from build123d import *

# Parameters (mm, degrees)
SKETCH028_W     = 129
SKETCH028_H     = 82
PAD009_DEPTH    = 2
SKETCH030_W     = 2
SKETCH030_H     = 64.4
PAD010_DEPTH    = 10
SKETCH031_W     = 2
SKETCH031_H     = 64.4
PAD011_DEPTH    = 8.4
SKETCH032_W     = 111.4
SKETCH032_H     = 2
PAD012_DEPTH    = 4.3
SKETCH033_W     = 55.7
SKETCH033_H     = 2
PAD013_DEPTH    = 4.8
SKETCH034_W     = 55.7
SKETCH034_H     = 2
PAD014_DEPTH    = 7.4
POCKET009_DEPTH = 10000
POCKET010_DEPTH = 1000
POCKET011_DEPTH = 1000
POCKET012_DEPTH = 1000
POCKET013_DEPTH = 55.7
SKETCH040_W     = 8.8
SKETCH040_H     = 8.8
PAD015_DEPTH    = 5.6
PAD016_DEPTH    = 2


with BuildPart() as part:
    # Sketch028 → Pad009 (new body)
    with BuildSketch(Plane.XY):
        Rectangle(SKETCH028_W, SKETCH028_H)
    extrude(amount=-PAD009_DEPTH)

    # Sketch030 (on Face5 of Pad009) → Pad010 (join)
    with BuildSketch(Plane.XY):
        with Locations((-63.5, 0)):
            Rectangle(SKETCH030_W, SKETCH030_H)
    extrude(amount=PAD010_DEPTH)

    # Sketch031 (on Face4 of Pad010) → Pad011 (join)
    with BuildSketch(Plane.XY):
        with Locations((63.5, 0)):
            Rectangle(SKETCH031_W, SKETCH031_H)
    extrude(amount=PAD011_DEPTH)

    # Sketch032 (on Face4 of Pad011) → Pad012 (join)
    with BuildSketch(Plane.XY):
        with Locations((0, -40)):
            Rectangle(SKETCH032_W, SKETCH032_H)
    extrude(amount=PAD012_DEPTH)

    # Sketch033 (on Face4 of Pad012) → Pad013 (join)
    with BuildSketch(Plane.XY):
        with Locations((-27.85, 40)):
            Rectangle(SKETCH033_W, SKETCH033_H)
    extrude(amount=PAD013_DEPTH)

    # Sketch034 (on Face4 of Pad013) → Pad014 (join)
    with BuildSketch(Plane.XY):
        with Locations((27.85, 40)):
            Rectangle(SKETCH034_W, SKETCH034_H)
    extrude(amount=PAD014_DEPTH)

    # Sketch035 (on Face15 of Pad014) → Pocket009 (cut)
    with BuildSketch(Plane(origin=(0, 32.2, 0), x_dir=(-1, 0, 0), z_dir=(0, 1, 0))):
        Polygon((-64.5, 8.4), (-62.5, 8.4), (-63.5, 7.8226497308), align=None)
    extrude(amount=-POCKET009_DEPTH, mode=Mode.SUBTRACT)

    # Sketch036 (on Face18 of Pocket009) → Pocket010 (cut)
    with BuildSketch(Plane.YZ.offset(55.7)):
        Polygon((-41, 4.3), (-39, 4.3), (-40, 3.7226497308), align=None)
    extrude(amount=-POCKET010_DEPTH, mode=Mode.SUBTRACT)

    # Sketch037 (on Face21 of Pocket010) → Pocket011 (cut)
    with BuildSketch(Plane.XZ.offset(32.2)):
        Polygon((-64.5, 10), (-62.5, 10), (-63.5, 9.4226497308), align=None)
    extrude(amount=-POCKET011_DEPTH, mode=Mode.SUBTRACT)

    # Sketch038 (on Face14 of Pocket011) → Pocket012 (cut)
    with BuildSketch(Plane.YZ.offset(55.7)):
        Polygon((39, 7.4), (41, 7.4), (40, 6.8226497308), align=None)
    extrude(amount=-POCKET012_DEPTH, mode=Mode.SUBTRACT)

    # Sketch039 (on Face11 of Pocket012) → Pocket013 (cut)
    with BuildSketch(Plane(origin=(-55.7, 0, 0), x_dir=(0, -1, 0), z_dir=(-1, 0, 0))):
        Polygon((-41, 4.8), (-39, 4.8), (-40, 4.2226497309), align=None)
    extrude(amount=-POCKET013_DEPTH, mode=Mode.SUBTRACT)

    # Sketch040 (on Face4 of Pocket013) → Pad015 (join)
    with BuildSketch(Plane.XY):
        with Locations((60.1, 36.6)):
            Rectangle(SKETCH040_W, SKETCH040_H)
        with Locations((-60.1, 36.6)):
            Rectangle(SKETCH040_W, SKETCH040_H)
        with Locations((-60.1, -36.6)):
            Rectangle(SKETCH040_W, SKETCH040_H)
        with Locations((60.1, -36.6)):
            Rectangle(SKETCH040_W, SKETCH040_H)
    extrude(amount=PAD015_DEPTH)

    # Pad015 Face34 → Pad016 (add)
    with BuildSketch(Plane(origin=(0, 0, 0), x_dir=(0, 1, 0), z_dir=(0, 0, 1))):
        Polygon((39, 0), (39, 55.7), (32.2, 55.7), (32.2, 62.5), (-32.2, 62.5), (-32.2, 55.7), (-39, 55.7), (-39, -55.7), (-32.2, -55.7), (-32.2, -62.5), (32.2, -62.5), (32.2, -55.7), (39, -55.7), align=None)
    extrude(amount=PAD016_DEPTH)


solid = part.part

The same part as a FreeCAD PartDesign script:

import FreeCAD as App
import Part
import Sketcher
from FreeCAD import Vector
Q = App.Units.Quantity

doc = App.newDocument("Part")
body = doc.addObject("PartDesign::Body", "Body")

sketch1 = body.newObject("Sketcher::SketchObject", "Sketch")
sketch1.AttachmentSupport = (doc.getObject("XY_Plane"), [""])
sketch1.MapMode = "FlatFace"
sketch1.addGeometry(Part.LineSegment(Vector(-64, 41, 0), Vector(-64, -41, 0)), False)
sketch1.addGeometry(Part.LineSegment(Vector(-64, -41, 0), Vector(64, -41, 0)), False)
sketch1.addGeometry(Part.LineSegment(Vector(64, -41, 0), Vector(64, 41, 0)), False)
sketch1.addGeometry(Part.LineSegment(Vector(64, 41, 0), Vector(-64, 41, 0)), False)
sketch1.addConstraint(Sketcher.Constraint("Coincident", 0, 2, 1, 1))
sketch1.addConstraint(Sketcher.Constraint("Coincident", 1, 2, 2, 1))
sketch1.addConstraint(Sketcher.Constraint("Coincident", 2, 2, 3, 1))
sketch1.addConstraint(Sketcher.Constraint("Coincident", 3, 2, 0, 1))
sketch1.addConstraint(Sketcher.Constraint("Vertical", 0))
sketch1.addConstraint(Sketcher.Constraint("Horizontal", 1))
sketch1.addConstraint(Sketcher.Constraint("Vertical", 2))
sketch1.addConstraint(Sketcher.Constraint("Horizontal", 3))
sketch1.addConstraint(Sketcher.Constraint("Symmetric", 0, 2, 2, 2, -1, 1))
sketch1.addConstraint(Sketcher.Constraint("DistanceX", 1, 1, 1, 2, 129.0))
sketch1.addConstraint(Sketcher.Constraint("DistanceY", 0, 2, 0, 1, 82.0))
pad1 = body.newObject("PartDesign::Pad", "Pad")
pad1.Profile = sketch1
pad1.Length = 2
pad1.Reversed = True

sketch2 = body.newObject("Sketcher::SketchObject", "Sketch001")
sketch2.AttachmentSupport = (doc.getObject("XY_Plane"), [""])
sketch2.MapMode = "FlatFace"
sketch2.addGeometry(Part.LineSegment(Vector(-64.5, 32.2, 0), Vector(-64.5, -32.2, 0)), False)
sketch2.addGeometry(Part.LineSegment(Vector(-64.5, -32.2, 0), Vector(-62.5, -32.2, 0)), False)
sketch2.addGeometry(Part.LineSegment(Vector(-62.5, -32.2, 0), Vector(-62.5, 32.2, 0)), False)
sketch2.addGeometry(Part.LineSegment(Vector(-62.5, 32.2, 0), Vector(-64.5, 32.2, 0)), False)
sketch2.addConstraint(Sketcher.Constraint("Coincident", 0, 2, 1, 1))
sketch2.addConstraint(Sketcher.Constraint("Coincident", 1, 2, 2, 1))
sketch2.addConstraint(Sketcher.Constraint("Coincident", 2, 2, 3, 1))
sketch2.addConstraint(Sketcher.Constraint("Coincident", 3, 2, 0, 1))
sketch2.addConstraint(Sketcher.Constraint("Vertical", 0))
sketch2.addConstraint(Sketcher.Constraint("Horizontal", 1))
sketch2.addConstraint(Sketcher.Constraint("Vertical", 2))
sketch2.addConstraint(Sketcher.Constraint("Horizontal", 3))
sketch2.addConstraint(Sketcher.Constraint("DistanceX", 1, 1, 1, 2, 2.0))
sketch2.addConstraint(Sketcher.Constraint("DistanceY", 0, 2, 0, 1, 64.4))
sketch2.addConstraint(Sketcher.Constraint("DistanceX", 0, 2, -1, 1, 64.5))
sketch2.addConstraint(Sketcher.Constraint("DistanceY", 0, 2, -1, 1, 32.2))
pad2 = body.newObject("PartDesign::Pad", "Pad001")
pad2.Profile = sketch2
pad2.Length = 10

sketch3 = body.newObject("Sketcher::SketchObject", "Sketch002")
sketch3.AttachmentSupport = (doc.getObject("XY_Plane"), [""])
sketch3.MapMode = "FlatFace"
sketch3.addGeometry(Part.LineSegment(Vector(62.5, 32.2, 0), Vector(62.5, -32.2, 0)), False)
sketch3.addGeometry(Part.LineSegment(Vector(62.5, -32.2, 0), Vector(64.5, -32.2, 0)), False)
sketch3.addGeometry(Part.LineSegment(Vector(64.5, -32.2, 0), Vector(64.5, 32.2, 0)), False)
sketch3.addGeometry(Part.LineSegment(Vector(64.5, 32.2, 0), Vector(62.5, 32.2, 0)), False)
sketch3.addConstraint(Sketcher.Constraint("Coincident", 0, 2, 1, 1))
sketch3.addConstraint(Sketcher.Constraint("Coincident", 1, 2, 2, 1))
sketch3.addConstraint(Sketcher.Constraint("Coincident", 2, 2, 3, 1))
sketch3.addConstraint(Sketcher.Constraint("Coincident", 3, 2, 0, 1))
sketch3.addConstraint(Sketcher.Constraint("Vertical", 0))
sketch3.addConstraint(Sketcher.Constraint("Horizontal", 1))
sketch3.addConstraint(Sketcher.Constraint("Vertical", 2))
sketch3.addConstraint(Sketcher.Constraint("Horizontal", 3))
sketch3.addConstraint(Sketcher.Constraint("DistanceX", 1, 1, 1, 2, 2.0))
sketch3.addConstraint(Sketcher.Constraint("DistanceY", 0, 2, 0, 1, 64.4))
sketch3.addConstraint(Sketcher.Constraint("DistanceX", -1, 1, 0, 2, 62.5))
sketch3.addConstraint(Sketcher.Constraint("DistanceY", 0, 2, -1, 1, 32.2))
pad3 = body.newObject("PartDesign::Pad", "Pad002")
pad3.Profile = sketch3
pad3.Length = 8.4

sketch4 = body.newObject("Sketcher::SketchObject", "Sketch003")
sketch4.AttachmentSupport = (doc.getObject("XY_Plane"), [""])
sketch4.MapMode = "FlatFace"
sketch4.addGeometry(Part.LineSegment(Vector(-55.7, -39, 0), Vector(-55.7, -41, 0)), False)
sketch4.addGeometry(Part.LineSegment(Vector(-55.7, -41, 0), Vector(55.7, -41, 0)), False)
sketch4.addGeometry(Part.LineSegment(Vector(55.7, -41, 0), Vector(55.7, -39, 0)), False)
sketch4.addGeometry(Part.LineSegment(Vector(55.7, -39, 0), Vector(-55.7, -39, 0)), False)
sketch4.addConstraint(Sketcher.Constraint("Coincident", 0, 2, 1, 1))
sketch4.addConstraint(Sketcher.Constraint("Coincident", 1, 2, 2, 1))
sketch4.addConstraint(Sketcher.Constraint("Coincident", 2, 2, 3, 1))
sketch4.addConstraint(Sketcher.Constraint("Coincident", 3, 2, 0, 1))
sketch4.addConstraint(Sketcher.Constraint("Vertical", 0))
sketch4.addConstraint(Sketcher.Constraint("Horizontal", 1))
sketch4.addConstraint(Sketcher.Constraint("Vertical", 2))
sketch4.addConstraint(Sketcher.Constraint("Horizontal", 3))
sketch4.addConstraint(Sketcher.Constraint("DistanceY", 0, 2, 0, 1, 2.0))
sketch4.addConstraint(Sketcher.Constraint("DistanceX", 1, 1, 1, 2, 111.4))
sketch4.addConstraint(Sketcher.Constraint("DistanceY", 0, 2, -1, 1, 41.0))
sketch4.addConstraint(Sketcher.Constraint("DistanceX", 0, 2, -1, 1, 55.7))
pad4 = body.newObject("PartDesign::Pad", "Pad003")
pad4.Profile = sketch4
pad4.Length = 4.3

sketch5 = body.newObject("Sketcher::SketchObject", "Sketch004")
sketch5.AttachmentSupport = (doc.getObject("XY_Plane"), [""])
sketch5.MapMode = "FlatFace"
sketch5.addGeometry(Part.LineSegment(Vector(-55.7, 41, 0), Vector(-55.7, 39, 0)), False)
sketch5.addGeometry(Part.LineSegment(Vector(-55.7, 39, 0), Vector(0, 39, 0)), False)
sketch5.addGeometry(Part.LineSegment(Vector(0, 39, 0), Vector(0, 41, 0)), False)
sketch5.addGeometry(Part.LineSegment(Vector(0, 41, 0), Vector(-55.7, 41, 0)), False)
sketch5.addConstraint(Sketcher.Constraint("Coincident", 0, 2, 1, 1))
sketch5.addConstraint(Sketcher.Constraint("Coincident", 1, 2, 2, 1))
sketch5.addConstraint(Sketcher.Constraint("Coincident", 2, 2, 3, 1))
sketch5.addConstraint(Sketcher.Constraint("Coincident", 3, 2, 0, 1))
sketch5.addConstraint(Sketcher.Constraint("Vertical", 0))
sketch5.addConstraint(Sketcher.Constraint("Horizontal", 1))
sketch5.addConstraint(Sketcher.Constraint("Vertical", 2))
sketch5.addConstraint(Sketcher.Constraint("Horizontal", 3))
sketch5.addConstraint(Sketcher.Constraint("PointOnObject", 1, 2, -2))
sketch5.addConstraint(Sketcher.Constraint("DistanceY", 0, 2, 0, 1, 2.0))
sketch5.addConstraint(Sketcher.Constraint("DistanceX", 1, 1, 1, 2, 55.7))
sketch5.addConstraint(Sketcher.Constraint("DistanceY", -1, 1, 0, 2, 39.0))
pad5 = body.newObject("PartDesign::Pad", "Pad004")
pad5.Profile = sketch5
pad5.Length = 4.8

sketch6 = body.newObject("Sketcher::SketchObject", "Sketch005")
sketch6.AttachmentSupport = (doc.getObject("XY_Plane"), [""])
sketch6.MapMode = "FlatFace"
sketch6.addGeometry(Part.LineSegment(Vector(0, 41, 0), Vector(0, 39, 0)), False)
sketch6.addGeometry(Part.LineSegment(Vector(0, 39, 0), Vector(55.7, 39, 0)), False)
sketch6.addGeometry(Part.LineSegment(Vector(55.7, 39, 0), Vector(55.7, 41, 0)), False)
sketch6.addGeometry(Part.LineSegment(Vector(55.7, 41, 0), Vector(0, 41, 0)), False)
sketch6.addConstraint(Sketcher.Constraint("Coincident", 0, 2, 1, 1))
sketch6.addConstraint(Sketcher.Constraint("Coincident", 1, 2, 2, 1))
sketch6.addConstraint(Sketcher.Constraint("Coincident", 2, 2, 3, 1))
sketch6.addConstraint(Sketcher.Constraint("Coincident", 3, 2, 0, 1))
sketch6.addConstraint(Sketcher.Constraint("Vertical", 0))
sketch6.addConstraint(Sketcher.Constraint("Horizontal", 1))
sketch6.addConstraint(Sketcher.Constraint("Vertical", 2))
sketch6.addConstraint(Sketcher.Constraint("Horizontal", 3))
sketch6.addConstraint(Sketcher.Constraint("PointOnObject", 0, 2, -2))
sketch6.addConstraint(Sketcher.Constraint("DistanceY", 0, 2, 0, 1, 2.0))
sketch6.addConstraint(Sketcher.Constraint("DistanceX", 1, 1, 1, 2, 55.7))
sketch6.addConstraint(Sketcher.Constraint("DistanceY", -1, 1, 0, 2, 39.0))
pad6 = body.newObject("PartDesign::Pad", "Pad005")
pad6.Profile = sketch6
pad6.Length = 7.4

sketch7 = body.newObject("Sketcher::SketchObject", "Sketch006")
sketch7.AttachmentSupport = (doc.getObject("XZ_Plane"), [""])
sketch7.MapMode = "FlatFace"
sketch7.AttachmentOffset = App.Placement(Vector(0, 0, -32.2), App.Rotation())
sketch7.addGeometry(Part.LineSegment(Vector(62.5, 8.4, 0), Vector(64.5, 8.4, 0)), False)
sketch7.addGeometry(Part.LineSegment(Vector(64.5, 8.4, 0), Vector(63.5, 7.8, 0)), False)
sketch7.addGeometry(Part.LineSegment(Vector(63.5, 7.8, 0), Vector(62.5, 8.4, 0)), False)
sketch7.addConstraint(Sketcher.Constraint("Coincident", 0, 2, 1, 1))
sketch7.addConstraint(Sketcher.Constraint("Coincident", 1, 2, 2, 1))
sketch7.addConstraint(Sketcher.Constraint("Coincident", 2, 2, 0, 1))
sketch7.addConstraint(Sketcher.Constraint("Horizontal", 0))
sketch7.addConstraint(Sketcher.Constraint("Equal", 1, 2))
sketch7.addConstraint(Sketcher.Constraint("DistanceX", 0, 1, 0, 2, 2.0))
sketch7.addConstraint(Sketcher.Constraint("Angle", 1, Q("-150 deg")))
sketch7.addConstraint(Sketcher.Constraint("DistanceX", -1, 1, 0, 2, 64.5))
sketch7.addConstraint(Sketcher.Constraint("DistanceY", -1, 1, 0, 2, 8.4))
pocket1 = body.newObject("PartDesign::Pocket", "Pocket")
pocket1.Profile = sketch7
pocket1.Length = 10000
pocket1.Reversed = True

sketch8 = body.newObject("Sketcher::SketchObject", "Sketch007")
sketch8.AttachmentSupport = (doc.getObject("YZ_Plane"), [""])
sketch8.MapMode = "FlatFace"
sketch8.AttachmentOffset = App.Placement(Vector(0, 0, 55.7), App.Rotation())
sketch8.addGeometry(Part.LineSegment(Vector(-39, 4.3, 0), Vector(-41, 4.3, 0)), False)
sketch8.addGeometry(Part.LineSegment(Vector(-41, 4.3, 0), Vector(-40, 3.7, 0)), False)
sketch8.addGeometry(Part.LineSegment(Vector(-40, 3.7, 0), Vector(-39, 4.3, 0)), False)
sketch8.addConstraint(Sketcher.Constraint("Coincident", 0, 2, 1, 1))
sketch8.addConstraint(Sketcher.Constraint("Coincident", 1, 2, 2, 1))
sketch8.addConstraint(Sketcher.Constraint("Coincident", 2, 2, 0, 1))
sketch8.addConstraint(Sketcher.Constraint("Horizontal", 0))
sketch8.addConstraint(Sketcher.Constraint("Equal", 1, 2))
sketch8.addConstraint(Sketcher.Constraint("DistanceX", 0, 2, 0, 1, 2.0))
sketch8.addConstraint(Sketcher.Constraint("Angle", 1, Q("-30 deg")))
sketch8.addConstraint(Sketcher.Constraint("DistanceX", 0, 2, -1, 1, 41.0))
sketch8.addConstraint(Sketcher.Constraint("DistanceY", -1, 1, 0, 2, 4.3))
pocket2 = body.newObject("PartDesign::Pocket", "Pocket001")
pocket2.Profile = sketch8
pocket2.Length = 1000

sketch9 = body.newObject("Sketcher::SketchObject", "Sketch008")
sketch9.AttachmentSupport = (doc.getObject("XZ_Plane"), [""])
sketch9.MapMode = "FlatFace"
sketch9.AttachmentOffset = App.Placement(Vector(0, 0, 32.2), App.Rotation())
sketch9.addGeometry(Part.LineSegment(Vector(-62.5, 10, 0), Vector(-64.5, 10, 0)), False)
sketch9.addGeometry(Part.LineSegment(Vector(-64.5, 10, 0), Vector(-63.5, 9.4, 0)), False)
sketch9.addGeometry(Part.LineSegment(Vector(-63.5, 9.4, 0), Vector(-62.5, 10, 0)), False)
sketch9.addConstraint(Sketcher.Constraint("Coincident", 0, 2, 1, 1))
sketch9.addConstraint(Sketcher.Constraint("Coincident", 1, 2, 2, 1))
sketch9.addConstraint(Sketcher.Constraint("Coincident", 2, 2, 0, 1))
sketch9.addConstraint(Sketcher.Constraint("Horizontal", 0))
sketch9.addConstraint(Sketcher.Constraint("Equal", 1, 2))
sketch9.addConstraint(Sketcher.Constraint("DistanceX", 0, 2, 0, 1, 2.0))
sketch9.addConstraint(Sketcher.Constraint("Angle", 1, Q("-30 deg")))
sketch9.addConstraint(Sketcher.Constraint("DistanceY", -1, 1, 0, 2, 10.0))
sketch9.addConstraint(Sketcher.Constraint("DistanceX", 0, 2, -1, 1, 64.5))
pocket3 = body.newObject("PartDesign::Pocket", "Pocket002")
pocket3.Profile = sketch9
pocket3.Length = 1000

sketch10 = body.newObject("Sketcher::SketchObject", "Sketch009")
sketch10.AttachmentSupport = (doc.getObject("YZ_Plane"), [""])
sketch10.MapMode = "FlatFace"
sketch10.AttachmentOffset = App.Placement(Vector(0, 0, 55.7), App.Rotation())
sketch10.addGeometry(Part.LineSegment(Vector(41, 7.4, 0), Vector(39, 7.4, 0)), False)
sketch10.addGeometry(Part.LineSegment(Vector(39, 7.4, 0), Vector(40, 6.8, 0)), False)
sketch10.addGeometry(Part.LineSegment(Vector(40, 6.8, 0), Vector(41, 7.4, 0)), False)
sketch10.addConstraint(Sketcher.Constraint("Coincident", 0, 2, 1, 1))
sketch10.addConstraint(Sketcher.Constraint("Coincident", 1, 2, 2, 1))
sketch10.addConstraint(Sketcher.Constraint("Coincident", 2, 2, 0, 1))
sketch10.addConstraint(Sketcher.Constraint("Horizontal", 0))
sketch10.addConstraint(Sketcher.Constraint("Equal", 1, 2))
sketch10.addConstraint(Sketcher.Constraint("DistanceX", 0, 2, 0, 1, 2.0))
sketch10.addConstraint(Sketcher.Constraint("Angle", 1, Q("-30 deg")))
sketch10.addConstraint(Sketcher.Constraint("DistanceX", -1, 1, 0, 2, 39.0))
sketch10.addConstraint(Sketcher.Constraint("DistanceY", -1, 1, 0, 2, 7.4))
pocket4 = body.newObject("PartDesign::Pocket", "Pocket003")
pocket4.Profile = sketch10
pocket4.Length = 1000

sketch11 = body.newObject("Sketcher::SketchObject", "Sketch010")
sketch11.AttachmentSupport = (doc.getObject("YZ_Plane"), [""])
sketch11.MapMode = "FlatFace"
sketch11.AttachmentOffset = App.Placement(Vector(0, 0, -55.7), App.Rotation())
sketch11.addGeometry(Part.LineSegment(Vector(39, 4.8, 0), Vector(41, 4.8, 0)), False)
sketch11.addGeometry(Part.LineSegment(Vector(41, 4.8, 0), Vector(40, 4.2, 0)), False)
sketch11.addGeometry(Part.LineSegment(Vector(40, 4.2, 0), Vector(39, 4.8, 0)), False)
sketch11.addConstraint(Sketcher.Constraint("Coincident", 0, 2, 1, 1))
sketch11.addConstraint(Sketcher.Constraint("Coincident", 1, 2, 2, 1))
sketch11.addConstraint(Sketcher.Constraint("Coincident", 2, 2, 0, 1))
sketch11.addConstraint(Sketcher.Constraint("Horizontal", 0))
sketch11.addConstraint(Sketcher.Constraint("Equal", 1, 2))
sketch11.addConstraint(Sketcher.Constraint("DistanceX", 0, 1, 0, 2, 2.0))
sketch11.addConstraint(Sketcher.Constraint("Angle", 1, Q("-150 deg")))
sketch11.addConstraint(Sketcher.Constraint("DistanceX", -1, 1, 0, 2, 41.0))
sketch11.addConstraint(Sketcher.Constraint("DistanceY", -1, 1, 0, 2, 4.8))
pocket5 = body.newObject("PartDesign::Pocket", "Pocket004")
pocket5.Profile = sketch11
pocket5.Length = 55.7
pocket5.Reversed = True

sketch12 = body.newObject("Sketcher::SketchObject", "Sketch011")
sketch12.AttachmentSupport = (doc.getObject("XY_Plane"), [""])
sketch12.MapMode = "FlatFace"
sketch12.addGeometry(Part.LineSegment(Vector(56, 41, 0), Vector(56, 32, 0)), False)
sketch12.addGeometry(Part.LineSegment(Vector(56, 32, 0), Vector(64, 32, 0)), False)
sketch12.addGeometry(Part.LineSegment(Vector(64, 32, 0), Vector(64, 41, 0)), False)
sketch12.addGeometry(Part.LineSegment(Vector(64, 41, 0), Vector(56, 41, 0)), False)
sketch12.addGeometry(Part.LineSegment(Vector(-64, 41, 0), Vector(-64, 32, 0)), False)
sketch12.addGeometry(Part.LineSegment(Vector(-64, 32, 0), Vector(-56, 32, 0)), False)
sketch12.addGeometry(Part.LineSegment(Vector(-56, 32, 0), Vector(-56, 41, 0)), False)
sketch12.addGeometry(Part.LineSegment(Vector(-56, 41, 0), Vector(-64, 41, 0)), False)
sketch12.addGeometry(Part.LineSegment(Vector(-64, -32, 0), Vector(-64, -41, 0)), False)
sketch12.addGeometry(Part.LineSegment(Vector(-64, -41, 0), Vector(-56, -41, 0)), False)
sketch12.addGeometry(Part.LineSegment(Vector(-56, -41, 0), Vector(-56, -32, 0)), False)
sketch12.addGeometry(Part.LineSegment(Vector(-56, -32, 0), Vector(-64, -32, 0)), False)
sketch12.addGeometry(Part.LineSegment(Vector(56, -32, 0), Vector(56, -41, 0)), False)
sketch12.addGeometry(Part.LineSegment(Vector(56, -41, 0), Vector(64, -41, 0)), False)
sketch12.addGeometry(Part.LineSegment(Vector(64, -41, 0), Vector(64, -32, 0)), False)
sketch12.addGeometry(Part.LineSegment(Vector(64, -32, 0), Vector(56, -32, 0)), False)
sketch12.addConstraint(Sketcher.Constraint("Coincident", 0, 2, 1, 1))
sketch12.addConstraint(Sketcher.Constraint("Coincident", 1, 2, 2, 1))
sketch12.addConstraint(Sketcher.Constraint("Coincident", 2, 2, 3, 1))
sketch12.addConstraint(Sketcher.Constraint("Coincident", 3, 2, 0, 1))
sketch12.addConstraint(Sketcher.Constraint("Coincident", 4, 2, 5, 1))
sketch12.addConstraint(Sketcher.Constraint("Coincident", 5, 2, 6, 1))
sketch12.addConstraint(Sketcher.Constraint("Coincident", 6, 2, 7, 1))
sketch12.addConstraint(Sketcher.Constraint("Coincident", 7, 2, 4, 1))
sketch12.addConstraint(Sketcher.Constraint("Coincident", 8, 2, 9, 1))
sketch12.addConstraint(Sketcher.Constraint("Coincident", 9, 2, 10, 1))
sketch12.addConstraint(Sketcher.Constraint("Coincident", 10, 2, 11, 1))
sketch12.addConstraint(Sketcher.Constraint("Coincident", 11, 2, 8, 1))
sketch12.addConstraint(Sketcher.Constraint("Coincident", 12, 2, 13, 1))
sketch12.addConstraint(Sketcher.Constraint("Coincident", 13, 2, 14, 1))
sketch12.addConstraint(Sketcher.Constraint("Coincident", 14, 2, 15, 1))
sketch12.addConstraint(Sketcher.Constraint("Coincident", 15, 2, 12, 1))
sketch12.addConstraint(Sketcher.Constraint("Vertical", 0))
sketch12.addConstraint(Sketcher.Constraint("Horizontal", 1))
sketch12.addConstraint(Sketcher.Constraint("Vertical", 2))
sketch12.addConstraint(Sketcher.Constraint("Horizontal", 3))
sketch12.addConstraint(Sketcher.Constraint("Vertical", 4))
sketch12.addConstraint(Sketcher.Constraint("Horizontal", 5))
sketch12.addConstraint(Sketcher.Constraint("Vertical", 6))
sketch12.addConstraint(Sketcher.Constraint("Horizontal", 7))
sketch12.addConstraint(Sketcher.Constraint("Vertical", 8))
sketch12.addConstraint(Sketcher.Constraint("Horizontal", 9))
sketch12.addConstraint(Sketcher.Constraint("Vertical", 10))
sketch12.addConstraint(Sketcher.Constraint("Horizontal", 11))
sketch12.addConstraint(Sketcher.Constraint("Vertical", 12))
sketch12.addConstraint(Sketcher.Constraint("Horizontal", 13))
sketch12.addConstraint(Sketcher.Constraint("Vertical", 14))
sketch12.addConstraint(Sketcher.Constraint("Horizontal", 15))
sketch12.addConstraint(Sketcher.Constraint("Symmetric", 2, 2, 8, 2, -1, 1))
sketch12.addConstraint(Sketcher.Constraint("Symmetric", 0, 2, 10, 2, -1, 1))
sketch12.addConstraint(Sketcher.Constraint("Symmetric", 6, 2, 12, 2, -1, 1))
sketch12.addConstraint(Sketcher.Constraint("Symmetric", 4, 2, 14, 2, -1, 1))
sketch12.addConstraint(Sketcher.Constraint("Symmetric", 1, 2, 4, 2, -2))
sketch12.addConstraint(Sketcher.Constraint("Symmetric", 3, 2, 6, 2, -2))
sketch12.addConstraint(Sketcher.Constraint("Equal", 15, 0))
sketch12.addConstraint(Sketcher.Constraint("DistanceX", 1, 1, 1, 2, 8.8))
sketch12.addConstraint(Sketcher.Constraint("DistanceY", -1, 1, 2, 2, 41.0))
sketch12.addConstraint(Sketcher.Constraint("DistanceX", 4, 2, 1, 2, 129.0))
pad7 = body.newObject("PartDesign::Pad", "Pad006")
pad7.Profile = sketch12
pad7.Length = 5.6

sketch13 = body.newObject("Sketcher::SketchObject", "Sketch012")
sketch13.AttachmentSupport = (doc.getObject("XY_Plane"), [""])
sketch13.MapMode = "FlatFace"
sketch13.addGeometry(Part.LineSegment(Vector(-56, 39, 0), Vector(-56, 32, 0)), False)
sketch13.addGeometry(Part.LineSegment(Vector(-56, 32, 0), Vector(-62, 32, 0)), False)
sketch13.addGeometry(Part.LineSegment(Vector(-62, 32, 0), Vector(-62, -32, 0)), False)
sketch13.addGeometry(Part.LineSegment(Vector(-62, -32, 0), Vector(-56, -32, 0)), False)
sketch13.addGeometry(Part.LineSegment(Vector(-56, -32, 0), Vector(-56, -39, 0)), False)
sketch13.addGeometry(Part.LineSegment(Vector(-56, -39, 0), Vector(56, -39, 0)), False)
sketch13.addGeometry(Part.LineSegment(Vector(56, -39, 0), Vector(56, -32, 0)), False)
sketch13.addGeometry(Part.LineSegment(Vector(56, -32, 0), Vector(62, -32, 0)), False)
sketch13.addGeometry(Part.LineSegment(Vector(62, -32, 0), Vector(62, 32, 0)), False)
sketch13.addGeometry(Part.LineSegment(Vector(62, 32, 0), Vector(56, 32, 0)), False)
sketch13.addGeometry(Part.LineSegment(Vector(56, 32, 0), Vector(56, 39, 0)), False)
sketch13.addGeometry(Part.LineSegment(Vector(56, 39, 0), Vector(-56, 39, 0)), False)
sketch13.addConstraint(Sketcher.Constraint("Coincident", 0, 2, 1, 1))
sketch13.addConstraint(Sketcher.Constraint("Coincident", 1, 2, 2, 1))
sketch13.addConstraint(Sketcher.Constraint("Coincident", 2, 2, 3, 1))
sketch13.addConstraint(Sketcher.Constraint("Coincident", 3, 2, 4, 1))
sketch13.addConstraint(Sketcher.Constraint("Coincident", 4, 2, 5, 1))
sketch13.addConstraint(Sketcher.Constraint("Coincident", 5, 2, 6, 1))
sketch13.addConstraint(Sketcher.Constraint("Coincident", 6, 2, 7, 1))
sketch13.addConstraint(Sketcher.Constraint("Coincident", 7, 2, 8, 1))
sketch13.addConstraint(Sketcher.Constraint("Coincident", 8, 2, 9, 1))
sketch13.addConstraint(Sketcher.Constraint("Coincident", 9, 2, 10, 1))
sketch13.addConstraint(Sketcher.Constraint("Coincident", 10, 2, 11, 1))
sketch13.addConstraint(Sketcher.Constraint("Coincident", 11, 2, 0, 1))
sketch13.addConstraint(Sketcher.Constraint("Vertical", 0))
sketch13.addConstraint(Sketcher.Constraint("Horizontal", 1))
sketch13.addConstraint(Sketcher.Constraint("Vertical", 2))
sketch13.addConstraint(Sketcher.Constraint("Horizontal", 3))
sketch13.addConstraint(Sketcher.Constraint("Vertical", 4))
sketch13.addConstraint(Sketcher.Constraint("Horizontal", 5))
sketch13.addConstraint(Sketcher.Constraint("Vertical", 6))
sketch13.addConstraint(Sketcher.Constraint("Horizontal", 7))
sketch13.addConstraint(Sketcher.Constraint("Vertical", 8))
sketch13.addConstraint(Sketcher.Constraint("Horizontal", 9))
sketch13.addConstraint(Sketcher.Constraint("Vertical", 10))
sketch13.addConstraint(Sketcher.Constraint("Horizontal", 11))
sketch13.addConstraint(Sketcher.Constraint("Symmetric", 0, 2, 6, 2, -1, 1))
sketch13.addConstraint(Sketcher.Constraint("Symmetric", 2, 2, 8, 2, -1, 1))
sketch13.addConstraint(Sketcher.Constraint("Symmetric", 4, 2, 10, 2, -1, 1))
sketch13.addConstraint(Sketcher.Constraint("Symmetric", 3, 2, 6, 2, -2))
sketch13.addConstraint(Sketcher.Constraint("Equal", 9, 0))
sketch13.addConstraint(Sketcher.Constraint("DistanceX", 1, 2, 1, 1, 6.8))
sketch13.addConstraint(Sketcher.Constraint("DistanceX", 5, 1, 5, 2, 111.4))
sketch13.addConstraint(Sketcher.Constraint("DistanceY", 2, 2, 2, 1, 64.4))
pad8 = body.newObject("PartDesign::Pad", "Pad007")
pad8.Profile = sketch13
pad8.Length = 2

doc.recompute()
